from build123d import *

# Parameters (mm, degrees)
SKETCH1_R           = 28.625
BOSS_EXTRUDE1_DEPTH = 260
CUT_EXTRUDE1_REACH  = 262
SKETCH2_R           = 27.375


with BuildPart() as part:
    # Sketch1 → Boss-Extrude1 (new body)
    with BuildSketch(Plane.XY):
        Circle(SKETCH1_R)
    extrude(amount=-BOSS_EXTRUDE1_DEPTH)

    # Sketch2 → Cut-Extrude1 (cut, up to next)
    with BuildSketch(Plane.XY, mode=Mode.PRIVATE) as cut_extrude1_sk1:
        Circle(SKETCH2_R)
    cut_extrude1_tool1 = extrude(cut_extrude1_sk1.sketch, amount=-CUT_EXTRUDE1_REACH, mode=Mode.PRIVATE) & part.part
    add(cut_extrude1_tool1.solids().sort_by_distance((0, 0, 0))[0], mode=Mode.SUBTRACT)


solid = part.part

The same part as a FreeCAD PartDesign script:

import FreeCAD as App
import Part
import Sketcher

V = App.Vector
Q = App.Units.Quantity

doc = App.newDocument("Part")
body = doc.addObject("PartDesign::Body", "Body")

# Sketch on XY plane
sketch1 = doc.addObject("Sketcher::SketchObject", "Sketch")
body.addObject(sketch1)
sketch1.AttachmentSupport = (doc.XY_Plane, [""])
sketch1.MapMode = "FlatFace"
sketch1.addGeometry(Part.Circle(V(0, 0, 0), V(0, 0, 1), 28.625), False)
sketch1.addConstraint(Sketcher.Constraint("Coincident", 0, 3, -1, 1))
sketch1.addConstraint(Sketcher.Constraint("Diameter", 0, Q("57.25 mm")))
pad1 = doc.addObject("PartDesign::Pad", "Pad")
body.addObject(pad1)
pad1.Profile = sketch1
pad1.Length = 260
pad1.Reversed = True

# Sketch on XY plane
sketch2 = doc.addObject("Sketcher::SketchObject", "Sketch001")
body.addObject(sketch2)
sketch2.AttachmentSupport = (doc.XY_Plane, [""])
sketch2.MapMode = "FlatFace"
sketch2.addGeometry(Part.Circle(V(0, 0, 0), V(0, 0, 1), 27.375), False)
sketch2.addConstraint(Sketcher.Constraint("Coincident", 0, 3, -1, 1))
sketch2.addConstraint(Sketcher.Constraint("Diameter", 0, Q("54.75 mm")))
pocket1 = doc.addObject("PartDesign::Pocket", "Pocket")
body.addObject(pocket1)
pocket1.Profile = sketch2
pocket1.Type = "UpToFirst"

doc.recompute()
